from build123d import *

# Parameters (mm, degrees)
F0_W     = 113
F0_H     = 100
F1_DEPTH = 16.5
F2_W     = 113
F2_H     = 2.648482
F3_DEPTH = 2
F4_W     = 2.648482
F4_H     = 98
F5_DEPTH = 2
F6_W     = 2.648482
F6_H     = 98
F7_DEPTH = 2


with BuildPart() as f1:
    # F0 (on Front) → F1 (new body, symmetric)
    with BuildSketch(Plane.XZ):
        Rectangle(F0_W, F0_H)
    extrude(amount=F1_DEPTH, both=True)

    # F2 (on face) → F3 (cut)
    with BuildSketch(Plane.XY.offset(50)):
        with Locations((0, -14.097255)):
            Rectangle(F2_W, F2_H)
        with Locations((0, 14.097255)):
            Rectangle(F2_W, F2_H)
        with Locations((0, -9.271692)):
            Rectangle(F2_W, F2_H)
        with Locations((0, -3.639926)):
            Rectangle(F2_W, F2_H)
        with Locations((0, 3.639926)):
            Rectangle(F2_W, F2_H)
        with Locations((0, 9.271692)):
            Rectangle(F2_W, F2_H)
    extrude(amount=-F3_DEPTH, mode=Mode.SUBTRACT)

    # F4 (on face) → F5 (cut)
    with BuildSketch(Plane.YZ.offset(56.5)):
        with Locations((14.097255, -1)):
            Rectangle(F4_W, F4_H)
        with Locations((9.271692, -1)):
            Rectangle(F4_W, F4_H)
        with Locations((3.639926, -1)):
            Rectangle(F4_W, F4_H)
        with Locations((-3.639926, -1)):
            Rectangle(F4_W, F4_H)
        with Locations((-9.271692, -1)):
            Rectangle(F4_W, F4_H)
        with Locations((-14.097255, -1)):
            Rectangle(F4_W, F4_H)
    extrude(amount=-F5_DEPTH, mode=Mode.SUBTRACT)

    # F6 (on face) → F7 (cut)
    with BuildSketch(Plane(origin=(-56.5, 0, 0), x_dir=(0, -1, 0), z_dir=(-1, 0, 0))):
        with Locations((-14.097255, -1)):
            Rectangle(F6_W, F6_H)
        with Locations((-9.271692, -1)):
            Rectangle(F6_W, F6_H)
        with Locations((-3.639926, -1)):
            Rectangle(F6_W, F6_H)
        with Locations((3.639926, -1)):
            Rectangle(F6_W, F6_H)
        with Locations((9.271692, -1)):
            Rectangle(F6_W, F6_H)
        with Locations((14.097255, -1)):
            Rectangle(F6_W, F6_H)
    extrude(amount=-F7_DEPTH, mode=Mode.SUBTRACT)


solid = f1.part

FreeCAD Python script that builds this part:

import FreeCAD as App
import Part
import Sketcher
Q = App.Units.Quantity

doc = App.newDocument("Part")
body = doc.addObject("PartDesign::Body", "Body")

sketch1 = body.newObject("Sketcher::SketchObject", "Sketch")
sketch1.AttachmentSupport = (doc.getObject("XZ_Plane"), [""])
sketch1.MapMode = "FlatFace"
sketch1.addGeometry([
    Part.LineSegment(App.Vector(-56.5, 50, 0), App.Vector(-56.5, -50, 0)),
    Part.LineSegment(App.Vector(-56.5, -50, 0), App.Vector(56.5, -50, 0)),
    Part.LineSegment(App.Vector(56.5, -50, 0), App.Vector(56.5, 50, 0)),
    Part.LineSegment(App.Vector(56.5, 50, 0), App.Vector(-56.5, 50, 0)),
], False)
sketch1.addConstraint([
    Sketcher.Constraint("Coincident", 0, 2, 1, 1),
    Sketcher.Constraint("Coincident", 1, 2, 2, 1),
    Sketcher.Constraint("Coincident", 2, 2, 3, 1),
    Sketcher.Constraint("Coincident", 3, 2, 0, 1),
    Sketcher.Constraint("Vertical", 0),
    Sketcher.Constraint("Horizontal", 1),
    Sketcher.Constraint("Vertical", 2),
    Sketcher.Constraint("Horizontal", 3),
    Sketcher.Constraint("Symmetric", 0, 2, 2, 2, -1, 1),
    Sketcher.Constraint("DistanceX", 1, 1, 1, 2, Q("113 mm")),
    Sketcher.Constraint("DistanceY", 0, 2, 0, 1, Q("100 mm")),
])
pad1 = body.newObject("PartDesign::Pad", "Pad")
pad1.Profile = sketch1
pad1.Length = 33
pad1.Midplane = True

sketch2 = body.newObject("Sketcher::SketchObject", "Sketch001")
sketch2.AttachmentSupport = (doc.getObject("XY_Plane"), [""])
sketch2.MapMode = "FlatFace"
sketch2.AttachmentOffset = App.Placement(App.Vector(0, 0, 50), App.Rotation())
sketch2.addGeometry([
    Part.LineSegment(App.Vector(-56.5, -12.773014, 0), App.Vector(-56.5, -15.421496, 0)),
    Part.LineSegment(App.Vector(-56.5, -15.421496, 0), App.Vector(56.5, -15.421496, 0)),
    Part.LineSegment(App.Vector(56.5, -15.421496, 0), App.Vector(56.5, -12.773014, 0)),
    Part.LineSegment(App.Vector(56.5, -12.773014, 0), App.Vector(-56.5, -12.773014, 0)),
    Part.LineSegment(App.Vector(-56.5, 15.421496, 0), App.Vector(-56.5, 12.773014, 0)),
    Part.LineSegment(App.Vector(-56.5, 12.773014, 0), App.Vector(56.5, 12.773014, 0)),
    Part.LineSegment(App.Vector(56.5, 12.773014, 0), App.Vector(56.5, 15.421496, 0)),
    Part.LineSegment(App.Vector(56.5, 15.421496, 0), App.Vector(-56.5, 15.421496, 0)),
    Part.LineSegment(App.Vector(-56.5, -7.947451, 0), App.Vector(-56.5, -10.595933, 0)),
    Part.LineSegment(App.Vector(-56.5, -10.595933, 0), App.Vector(56.5, -10.595933, 0)),
    Part.LineSegment(App.Vector(56.5, -10.595933, 0), App.Vector(56.5, -7.947451, 0)),
    Part.LineSegment(App.Vector(56.5, -7.947451, 0), App.Vector(-56.5, -7.947451, 0)),
    Part.LineSegment(App.Vector(-56.5, -2.315685, 0), App.Vector(-56.5, -4.964167, 0)),
    Part.LineSegment(App.Vector(-56.5, -4.964167, 0), App.Vector(56.5, -4.964167, 0)),
    Part.LineSegment(App.Vector(56.5, -4.964167, 0), App.Vector(56.5, -2.315685, 0)),
    Part.LineSegment(App.Vector(56.5, -2.315685, 0), App.Vector(-56.5, -2.315685, 0)),
    Part.LineSegment(App.Vector(-56.5, 4.964167, 0), App.Vector(-56.5, 2.315685, 0)),
    Part.LineSegment(App.Vector(-56.5, 2.315685, 0), App.Vector(56.5, 2.315685, 0)),
    Part.LineSegment(App.Vector(56.5, 2.315685, 0), App.Vector(56.5, 4.964167, 0)),
    Part.LineSegment(App.Vector(56.5, 4.964167, 0), App.Vector(-56.5, 4.964167, 0)),
    Part.LineSegment(App.Vector(-56.5, 10.595933, 0), App.Vector(-56.5, 7.947451, 0)),
    Part.LineSegment(App.Vector(-56.5, 7.947451, 0), App.Vector(56.5, 7.947451, 0)),
    Part.LineSegment(App.Vector(56.5, 7.947451, 0), App.Vector(56.5, 10.595933, 0)),
    Part.LineSegment(App.Vector(56.5, 10.595933, 0), App.Vector(-56.5, 10.595933, 0)),
], False)
sketch2.addConstraint([
    Sketcher.Constraint("Coincident", 0, 2, 1, 1),
    Sketcher.Constraint("Coincident", 1, 2, 2, 1),
    Sketcher.Constraint("Coincident", 2, 2, 3, 1),
    Sketcher.Constraint("Coincident", 3, 2, 0, 1),
    Sketcher.Constraint("Coincident", 4, 2, 5, 1),
    Sketcher.Constraint("Coincident", 5, 2, 6, 1),
    Sketcher.Constraint("Coincident", 6, 2, 7, 1),
    Sketcher.Constraint("Coincident", 7, 2, 4, 1),
    Sketcher.Constraint("Coincident", 8, 2, 9, 1),
    Sketcher.Constraint("Coincident", 9, 2, 10, 1),
    Sketcher.Constraint("Coincident", 10, 2, 11, 1),
    Sketcher.Constraint("Coincident", 11, 2, 8, 1),
    Sketcher.Constraint("Coincident", 12, 2, 13, 1),
    Sketcher.Constraint("Coincident", 13, 2, 14, 1),
    Sketcher.Constraint("Coincident", 14, 2, 15, 1),
    Sketcher.Constraint("Coincident", 15, 2, 12, 1),
    Sketcher.Constraint("Coincident", 16, 2, 17, 1),
    Sketcher.Constraint("Coincident", 17, 2, 18, 1),
    Sketcher.Constraint("Coincident", 18, 2, 19, 1),
    Sketcher.Constraint("Coincident", 19, 2, 16, 1),
    Sketcher.Constraint("Coincident", 20, 2, 21, 1),
    Sketcher.Constraint("Coincident", 21, 2, 22, 1),
    Sketcher.Constraint("Coincident", 22, 2, 23, 1),
    Sketcher.Constraint("Coincident", 23, 2, 20, 1),
    Sketcher.Constraint("Vertical", 0),
    Sketcher.Constraint("Horizontal", 1),
    Sketcher.Constraint("Vertical", 2),
    Sketcher.Constraint("Horizontal", 3),
    Sketcher.Constraint("Vertical", 4),
    Sketcher.Constraint("Horizontal", 5),
    Sketcher.Constraint("Vertical", 6),
    Sketcher.Constraint("Horizontal", 7),
    Sketcher.Constraint("Vertical", 8),
    Sketcher.Constraint("Horizontal", 9),
    Sketcher.Constraint("Vertical", 10),
    Sketcher.Constraint("Horizontal", 11),
    Sketcher.Constraint("Vertical", 12),
    Sketcher.Constraint("Horizontal", 13),
    Sketcher.Constraint("Vertical", 14),
    Sketcher.Constraint("Horizontal", 15),
    Sketcher.Constraint("Vertical", 16),
    Sketcher.Constraint("Horizontal", 17),
    Sketcher.Constraint("Vertical", 18),
    Sketcher.Constraint("Horizontal", 19),
    Sketcher.Constraint("Vertical", 20),
    Sketcher.Constraint("Horizontal", 21),
    Sketcher.Constraint("Vertical", 22),
    Sketcher.Constraint("Horizontal", 23),
    Sketcher.Constraint("Symmetric", 2, 2, 4, 2, -1, 1),
    Sketcher.Constraint("Symmetric", 0, 2, 6, 2, -1, 1),
    Sketcher.Constraint("Symmetric", 14, 2, 16, 2, -1, 1),
    Sketcher.Constraint("Symmetric", 12, 2, 18, 2, -1, 1),
    Sketcher.Constraint("Symmetric", 10, 2, 20, 2, -1, 1),
    Sketcher.Constraint("Symmetric", 8, 2, 22, 2, -1, 1),
    Sketcher.Constraint("Vertical", 3, 2, 4, 2),
    Sketcher.Constraint("Vertical", 7, 2, 8, 2),
    Sketcher.Constraint("Vertical", 6, 2, 9, 2),
    Sketcher.Constraint("Vertical", 11, 2, 12, 2),
    Sketcher.Constraint("Vertical", 10, 2, 13, 2),
    Sketcher.Constraint("Equal", 6, 8),
    Sketcher.Constraint("Equal", 10, 12),
    Sketcher.Constraint("DistanceX", 1, 1, 1, 2, Q("113 mm")),
    Sketcher.Constraint("DistanceY", 0, 2, 0, 1, Q("2.648482 mm")),
    Sketcher.Constraint("DistanceY", 10, 2, -1, 1, Q("7.947451 mm")),
    Sketcher.Constraint("DistanceY", 3, 2, 4, 2, Q("25.546028 mm")),
    Sketcher.Constraint("DistanceY", 0, 2, 12, 2, Q("10.457329 mm")),
])
pocket1 = body.newObject("PartDesign::Pocket", "Pocket")
pocket1.Profile = sketch2
pocket1.Length = 2

sketch3 = body.newObject("Sketcher::SketchObject", "Sketch002")
sketch3.AttachmentSupport = (doc.getObject("YZ_Plane"), [""])
sketch3.MapMode = "FlatFace"
sketch3.AttachmentOffset = App.Placement(App.Vector(0, 0, 56.5), App.Rotation())
sketch3.addGeometry([
    Part.LineSegment(App.Vector(12.773014, 48, 0), App.Vector(12.773014, -50, 0)),
    Part.LineSegment(App.Vector(12.773014, -50, 0), App.Vector(15.421496, -50, 0)),
    Part.LineSegment(App.Vector(15.421496, -50, 0), App.Vector(15.421496, 48, 0)),
    Part.LineSegment(App.Vector(15.421496, 48, 0), App.Vector(12.773014, 48, 0)),
    Part.LineSegment(App.Vector(7.947451, 48, 0), App.Vector(7.947451, -50, 0)),
    Part.LineSegment(App.Vector(7.947451, -50, 0), App.Vector(10.595933, -50, 0)),
    Part.LineSegment(App.Vector(10.595933, -50, 0), App.Vector(10.595933, 48, 0)),
    Part.LineSegment(App.Vector(10.595933, 48, 0), App.Vector(7.947451, 48, 0)),
    Part.LineSegment(App.Vector(2.315685, 48, 0), App.Vector(2.315685, -50, 0)),
    Part.LineSegment(App.Vector(2.315685, -50, 0), App.Vector(4.964167, -50, 0)),
    Part.LineSegment(App.Vector(4.964167, -50, 0), App.Vector(4.964167, 48, 0)),
    Part.LineSegment(App.Vector(4.964167, 48, 0), App.Vector(2.315685, 48, 0)),
    Part.LineSegment(App.Vector(-4.964167, 48, 0), App.Vector(-4.964167, -50, 0)),
    Part.LineSegment(App.Vector(-4.964167, -50, 0), App.Vector(-2.315685, -50, 0)),
    Part.LineSegment(App.Vector(-2.315685, -50, 0), App.Vector(-2.315685, 48, 0)),
    Part.LineSegment(App.Vector(-2.315685, 48, 0), App.Vector(-4.964167, 48, 0)),
    Part.LineSegment(App.Vector(-10.595933, 48, 0), App.Vector(-10.595933, -50, 0)),
    Part.LineSegment(App.Vector(-10.595933, -50, 0), App.Vector(-7.947451, -50, 0)),
    Part.LineSegment(App.Vector(-7.947451, -50, 0), App.Vector(-7.947451, 48, 0)),
    Part.LineSegment(App.Vector(-7.947451, 48, 0), App.Vector(-10.595933, 48, 0)),
    Part.LineSegment(App.Vector(-15.421496, 48, 0), App.Vector(-15.421496, -50, 0)),
    Part.LineSegment(App.Vector(-15.421496, -50, 0), App.Vector(-12.773014, -50, 0)),
    Part.LineSegment(App.Vector(-12.773014, -50, 0), App.Vector(-12.773014, 48, 0)),
    Part.LineSegment(App.Vector(-12.773014, 48, 0), App.Vector(-15.421496, 48, 0)),
], False)
sketch3.addConstraint([
    Sketcher.Constraint("Coincident", 0, 2, 1, 1),
    Sketcher.Constraint("Coincident", 1, 2, 2, 1),
    Sketcher.Constraint("Coincident", 2, 2, 3, 1),
    Sketcher.Constraint("Coincident", 3, 2, 0, 1),
    Sketcher.Constraint("Coincident", 4, 2, 5, 1),
    Sketcher.Constraint("Coincident", 5, 2, 6, 1),
    Sketcher.Constraint("Coincident", 6, 2, 7, 1),
    Sketcher.Constraint("Coincident", 7, 2, 4, 1),
    Sketcher.Constraint("Coincident", 8, 2, 9, 1),
    Sketcher.Constraint("Coincident", 9, 2, 10, 1),
    Sketcher.Constraint("Coincident", 10, 2, 11, 1),
    Sketcher.Constraint("Coincident", 11, 2, 8, 1),
    Sketcher.Constraint("Coincident", 12, 2, 13, 1),
    Sketcher.Constraint("Coincident", 13, 2, 14, 1),
    Sketcher.Constraint("Coincident", 14, 2, 15, 1),
    Sketcher.Constraint("Coincident", 15, 2, 12, 1),
    Sketcher.Constraint("Coincident", 16, 2, 17, 1),
    Sketcher.Constraint("Coincident", 17, 2, 18, 1),
    Sketcher.Constraint("Coincident", 18, 2, 19, 1),
    Sketcher.Constraint("Coincident", 19, 2, 16, 1),
    Sketcher.Constraint("Coincident", 20, 2, 21, 1),
    Sketcher.Constraint("Coincident", 21, 2, 22, 1),
    Sketcher.Constraint("Coincident", 22, 2, 23, 1),
    Sketcher.Constraint("Coincident", 23, 2, 20, 1),
    Sketcher.Constraint("Vertical", 0),
    Sketcher.Constraint("Horizontal", 1),
    Sketcher.Constraint("Vertical", 2),
    Sketcher.Constraint("Horizontal", 3),
    Sketcher.Constraint("Vertical", 4),
    Sketcher.Constraint("Horizontal", 5),
    Sketcher.Constraint("Vertical", 6),
    Sketcher.Constraint("Horizontal", 7),
    Sketcher.Constraint("Vertical", 8),
    Sketcher.Constraint("Horizontal", 9),
    Sketcher.Constraint("Vertical", 10),
    Sketcher.Constraint("Horizontal", 11),
    Sketcher.Constraint("Vertical", 12),
    Sketcher.Constraint("Horizontal", 13),
    Sketcher.Constraint("Vertical", 14),
    Sketcher.Constraint("Horizontal", 15),
    Sketcher.Constraint("Vertical", 16),
    Sketcher.Constraint("Horizontal", 17),
    Sketcher.Constraint("Vertical", 18),
    Sketcher.Constraint("Horizontal", 19),
    Sketcher.Constraint("Vertical", 20),
    Sketcher.Constraint("Horizontal", 21),
    Sketcher.Constraint("Vertical", 22),
    Sketcher.Constraint("Horizontal", 23),
    Sketcher.Constraint("Symmetric", 9, 2, 12, 2, -2),
    Sketcher.Constraint("Symmetric", 11, 2, 14, 2, -2),
    Sketcher.Constraint("Symmetric", 5, 2, 16, 2, -2),
    Sketcher.Constraint("Symmetric", 7, 2, 18, 2, -2),
    Sketcher.Constraint("Symmetric", 1, 2, 20, 2, -2),
    Sketcher.Constraint("Symmetric", 3, 2, 22, 2, -2),
    Sketcher.Constraint("Horizontal", 1, 2, 4, 2),
    Sketcher.Constraint("Horizontal", 3, 2, 6, 2),
    Sketcher.Constraint("Horizontal", 5, 2, 8, 2),
    Sketcher.Constraint("Horizontal", 7, 2, 10, 2),
    Sketcher.Constraint("Equal", 3, 5),
    Sketcher.Constraint("Equal", 7, 9),
    Sketcher.Constraint("DistanceY", 0, 2, 0, 1, Q("98 mm")),
    Sketcher.Constraint("DistanceY", 0, 2, -1, 1, Q("50 mm")),
    Sketcher.Constraint("DistanceX", 1, 1, 1, 2, Q("2.648482 mm")),
    Sketcher.Constraint("DistanceX", 12, 2, 5, 2, Q("15.5601 mm")),
    Sketcher.Constraint("DistanceX", 14, 2, 3, 2, Q("15.088699 mm")),
    Sketcher.Constraint("DistanceX", -1, 1, 4, 2, Q("7.947451 mm")),
])
pocket2 = body.newObject("PartDesign::Pocket", "Pocket001")
pocket2.Profile = sketch3
pocket2.Length = 2

sketch4 = body.newObject("Sketcher::SketchObject", "Sketch003")
sketch4.AttachmentSupport = (doc.getObject("YZ_Plane"), [""])
sketch4.MapMode = "FlatFace"
sketch4.AttachmentOffset = App.Placement(App.Vector(0, 0, -56.5), App.Rotation())
sketch4.addGeometry([
    Part.LineSegment(App.Vector(15.421496, 48, 0), App.Vector(15.421496, -50, 0)),
    Part.LineSegment(App.Vector(15.421496, -50, 0), App.Vector(12.773014, -50, 0)),
    Part.LineSegment(App.Vector(12.773014, -50, 0), App.Vector(12.773014, 48, 0)),
    Part.LineSegment(App.Vector(12.773014, 48, 0), App.Vector(15.421496, 48, 0)),
    Part.LineSegment(App.Vector(10.595933, 48, 0), App.Vector(10.595933, -50, 0)),
    Part.LineSegment(App.Vector(10.595933, -50, 0), App.Vector(7.947451, -50, 0)),
    Part.LineSegment(App.Vector(7.947451, -50, 0), App.Vector(7.947451, 48, 0)),
    Part.LineSegment(App.Vector(7.947451, 48, 0), App.Vector(10.595933, 48, 0)),
    Part.LineSegment(App.Vector(4.964167, 48, 0), App.Vector(4.964167, -50, 0)),
    Part.LineSegment(App.Vector(4.964167, -50, 0), App.Vector(2.315685, -50, 0)),
    Part.LineSegment(App.Vector(2.315685, -50, 0), App.Vector(2.315685, 48, 0)),
    Part.LineSegment(App.Vector(2.315685, 48, 0), App.Vector(4.964167, 48, 0)),
    Part.LineSegment(App.Vector(-2.315685, 48, 0), App.Vector(-2.315685, -50, 0)),
    Part.LineSegment(App.Vector(-2.315685, -50, 0), App.Vector(-4.964167, -50, 0)),
    Part.LineSegment(App.Vector(-4.964167, -50, 0), App.Vector(-4.964167, 48, 0)),
    Part.LineSegment(App.Vector(-4.964167, 48, 0), App.Vector(-2.315685, 48, 0)),
    Part.LineSegment(App.Vector(-7.947451, 48, 0), App.Vector(-7.947451, -50, 0)),
    Part.LineSegment(App.Vector(-7.947451, -50, 0), App.Vector(-10.595933, -50, 0)),
    Part.LineSegment(App.Vector(-10.595933, -50, 0), App.Vector(-10.595933, 48, 0)),
    Part.LineSegment(App.Vector(-10.595933, 48, 0), App.Vector(-7.947451, 48, 0)),
    Part.LineSegment(App.Vector(-12.773014, 48, 0), App.Vector(-12.773014, -50, 0)),
    Part.LineSegment(App.Vector(-12.773014, -50, 0), App.Vector(-15.421496, -50, 0)),
    Part.LineSegment(App.Vector(-15.421496, -50, 0), App.Vector(-15.421496, 48, 0)),
    Part.LineSegment(App.Vector(-15.421496, 48, 0), App.Vector(-12.773014, 48, 0)),
], False)
sketch4.addConstraint([
    Sketcher.Constraint("Coincident", 0, 2, 1, 1),
    Sketcher.Constraint("Coincident", 1, 2, 2, 1),
    Sketcher.Constraint("Coincident", 2, 2, 3, 1),
    Sketcher.Constraint("Coincident", 3, 2, 0, 1),
    Sketcher.Constraint("Coincident", 4, 2, 5, 1),
    Sketcher.Constraint("Coincident", 5, 2, 6, 1),
    Sketcher.Constraint("Coincident", 6, 2, 7, 1),
    Sketcher.Constraint("Coincident", 7, 2, 4, 1),
    Sketcher.Constraint("Coincident", 8, 2, 9, 1),
    Sketcher.Constraint("Coincident", 9, 2, 10, 1),
    Sketcher.Constraint("Coincident", 10, 2, 11, 1),
    Sketcher.Constraint("Coincident", 11, 2, 8, 1),
    Sketcher.Constraint("Coincident", 12, 2, 13, 1),
    Sketcher.Constraint("Coincident", 13, 2, 14, 1),
    Sketcher.Constraint("Coincident", 14, 2, 15, 1),
    Sketcher.Constraint("Coincident", 15, 2, 12, 1),
    Sketcher.Constraint("Coincident", 16, 2, 17, 1),
    Sketcher.Constraint("Coincident", 17, 2, 18, 1),
    Sketcher.Constraint("Coincident", 18, 2, 19, 1),
    Sketcher.Constraint("Coincident", 19, 2, 16, 1),
    Sketcher.Constraint("Coincident", 20, 2, 21, 1),
    Sketcher.Constraint("Coincident", 21, 2, 22, 1),
    Sketcher.Constraint("Coincident", 22, 2, 23, 1),
    Sketcher.Constraint("Coincident", 23, 2, 20, 1),
    Sketcher.Constraint("Vertical", 0),
    Sketcher.Constraint("Horizontal", 1),
    Sketcher.Constraint("Vertical", 2),
    Sketcher.Constraint("Horizontal", 3),
    Sketcher.Constraint("Vertical", 4),
    Sketcher.Constraint("Horizontal", 5),
    Sketcher.Constraint("Vertical", 6),
    Sketcher.Constraint("Horizontal", 7),
    Sketcher.Constraint("Vertical", 8),
    Sketcher.Constraint("Horizontal", 9),
    Sketcher.Constraint("Vertical", 10),
    Sketcher.Constraint("Horizontal", 11),
    Sketcher.Constraint("Vertical", 12),
    Sketcher.Constraint("Horizontal", 13),
    Sketcher.Constraint("Vertical", 14),
    Sketcher.Constraint("Horizontal", 15),
    Sketcher.Constraint("Vertical", 16),
    Sketcher.Constraint("Horizontal", 17),
    Sketcher.Constraint("Vertical", 18),
    Sketcher.Constraint("Horizontal", 19),
    Sketcher.Constraint("Vertical", 20),
    Sketcher.Constraint("Horizontal", 21),
    Sketcher.Constraint("Vertical", 22),
    Sketcher.Constraint("Horizontal", 23),
    Sketcher.Constraint("Symmetric", 9, 2, 12, 2, -2),
    Sketcher.Constraint("Symmetric", 11, 2, 14, 2, -2),
    Sketcher.Constraint("Symmetric", 5, 2, 16, 2, -2),
    Sketcher.Constraint("Symmetric", 7, 2, 18, 2, -2),
    Sketcher.Constraint("Symmetric", 1, 2, 20, 2, -2),
    Sketcher.Constraint("Symmetric", 3, 2, 22, 2, -2),
    Sketcher.Constraint("Horizontal", 1, 2, 4, 2),
    Sketcher.Constraint("Horizontal", 3, 2, 6, 2),
    Sketcher.Constraint("Horizontal", 5, 2, 8, 2),
    Sketcher.Constraint("Horizontal", 7, 2, 10, 2),
    Sketcher.Constraint("Equal", 3, 5),
    Sketcher.Constraint("Equal", 7, 9),
    Sketcher.Constraint("DistanceY", 0, 2, 0, 1, Q("98 mm")),
    Sketcher.Constraint("DistanceY", 0, 2, -1, 1, Q("50 mm")),
    Sketcher.Constraint("DistanceX", 1, 2, 1, 1, Q("2.648482 mm")),
    Sketcher.Constraint("DistanceX", 12, 2, 1, 2, Q("15.088699 mm")),
    Sketcher.Constraint("DistanceX", 13, 2, 4, 2, Q("15.5601 mm")),
    Sketcher.Constraint("DistanceX", -1, 1, 5, 2, Q("7.947451 mm")),
])
pocket3 = body.newObject("PartDesign::Pocket", "Pocket002")
pocket3.Profile = sketch4
pocket3.Length = 2
pocket3.Reversed = True

doc.recompute()
